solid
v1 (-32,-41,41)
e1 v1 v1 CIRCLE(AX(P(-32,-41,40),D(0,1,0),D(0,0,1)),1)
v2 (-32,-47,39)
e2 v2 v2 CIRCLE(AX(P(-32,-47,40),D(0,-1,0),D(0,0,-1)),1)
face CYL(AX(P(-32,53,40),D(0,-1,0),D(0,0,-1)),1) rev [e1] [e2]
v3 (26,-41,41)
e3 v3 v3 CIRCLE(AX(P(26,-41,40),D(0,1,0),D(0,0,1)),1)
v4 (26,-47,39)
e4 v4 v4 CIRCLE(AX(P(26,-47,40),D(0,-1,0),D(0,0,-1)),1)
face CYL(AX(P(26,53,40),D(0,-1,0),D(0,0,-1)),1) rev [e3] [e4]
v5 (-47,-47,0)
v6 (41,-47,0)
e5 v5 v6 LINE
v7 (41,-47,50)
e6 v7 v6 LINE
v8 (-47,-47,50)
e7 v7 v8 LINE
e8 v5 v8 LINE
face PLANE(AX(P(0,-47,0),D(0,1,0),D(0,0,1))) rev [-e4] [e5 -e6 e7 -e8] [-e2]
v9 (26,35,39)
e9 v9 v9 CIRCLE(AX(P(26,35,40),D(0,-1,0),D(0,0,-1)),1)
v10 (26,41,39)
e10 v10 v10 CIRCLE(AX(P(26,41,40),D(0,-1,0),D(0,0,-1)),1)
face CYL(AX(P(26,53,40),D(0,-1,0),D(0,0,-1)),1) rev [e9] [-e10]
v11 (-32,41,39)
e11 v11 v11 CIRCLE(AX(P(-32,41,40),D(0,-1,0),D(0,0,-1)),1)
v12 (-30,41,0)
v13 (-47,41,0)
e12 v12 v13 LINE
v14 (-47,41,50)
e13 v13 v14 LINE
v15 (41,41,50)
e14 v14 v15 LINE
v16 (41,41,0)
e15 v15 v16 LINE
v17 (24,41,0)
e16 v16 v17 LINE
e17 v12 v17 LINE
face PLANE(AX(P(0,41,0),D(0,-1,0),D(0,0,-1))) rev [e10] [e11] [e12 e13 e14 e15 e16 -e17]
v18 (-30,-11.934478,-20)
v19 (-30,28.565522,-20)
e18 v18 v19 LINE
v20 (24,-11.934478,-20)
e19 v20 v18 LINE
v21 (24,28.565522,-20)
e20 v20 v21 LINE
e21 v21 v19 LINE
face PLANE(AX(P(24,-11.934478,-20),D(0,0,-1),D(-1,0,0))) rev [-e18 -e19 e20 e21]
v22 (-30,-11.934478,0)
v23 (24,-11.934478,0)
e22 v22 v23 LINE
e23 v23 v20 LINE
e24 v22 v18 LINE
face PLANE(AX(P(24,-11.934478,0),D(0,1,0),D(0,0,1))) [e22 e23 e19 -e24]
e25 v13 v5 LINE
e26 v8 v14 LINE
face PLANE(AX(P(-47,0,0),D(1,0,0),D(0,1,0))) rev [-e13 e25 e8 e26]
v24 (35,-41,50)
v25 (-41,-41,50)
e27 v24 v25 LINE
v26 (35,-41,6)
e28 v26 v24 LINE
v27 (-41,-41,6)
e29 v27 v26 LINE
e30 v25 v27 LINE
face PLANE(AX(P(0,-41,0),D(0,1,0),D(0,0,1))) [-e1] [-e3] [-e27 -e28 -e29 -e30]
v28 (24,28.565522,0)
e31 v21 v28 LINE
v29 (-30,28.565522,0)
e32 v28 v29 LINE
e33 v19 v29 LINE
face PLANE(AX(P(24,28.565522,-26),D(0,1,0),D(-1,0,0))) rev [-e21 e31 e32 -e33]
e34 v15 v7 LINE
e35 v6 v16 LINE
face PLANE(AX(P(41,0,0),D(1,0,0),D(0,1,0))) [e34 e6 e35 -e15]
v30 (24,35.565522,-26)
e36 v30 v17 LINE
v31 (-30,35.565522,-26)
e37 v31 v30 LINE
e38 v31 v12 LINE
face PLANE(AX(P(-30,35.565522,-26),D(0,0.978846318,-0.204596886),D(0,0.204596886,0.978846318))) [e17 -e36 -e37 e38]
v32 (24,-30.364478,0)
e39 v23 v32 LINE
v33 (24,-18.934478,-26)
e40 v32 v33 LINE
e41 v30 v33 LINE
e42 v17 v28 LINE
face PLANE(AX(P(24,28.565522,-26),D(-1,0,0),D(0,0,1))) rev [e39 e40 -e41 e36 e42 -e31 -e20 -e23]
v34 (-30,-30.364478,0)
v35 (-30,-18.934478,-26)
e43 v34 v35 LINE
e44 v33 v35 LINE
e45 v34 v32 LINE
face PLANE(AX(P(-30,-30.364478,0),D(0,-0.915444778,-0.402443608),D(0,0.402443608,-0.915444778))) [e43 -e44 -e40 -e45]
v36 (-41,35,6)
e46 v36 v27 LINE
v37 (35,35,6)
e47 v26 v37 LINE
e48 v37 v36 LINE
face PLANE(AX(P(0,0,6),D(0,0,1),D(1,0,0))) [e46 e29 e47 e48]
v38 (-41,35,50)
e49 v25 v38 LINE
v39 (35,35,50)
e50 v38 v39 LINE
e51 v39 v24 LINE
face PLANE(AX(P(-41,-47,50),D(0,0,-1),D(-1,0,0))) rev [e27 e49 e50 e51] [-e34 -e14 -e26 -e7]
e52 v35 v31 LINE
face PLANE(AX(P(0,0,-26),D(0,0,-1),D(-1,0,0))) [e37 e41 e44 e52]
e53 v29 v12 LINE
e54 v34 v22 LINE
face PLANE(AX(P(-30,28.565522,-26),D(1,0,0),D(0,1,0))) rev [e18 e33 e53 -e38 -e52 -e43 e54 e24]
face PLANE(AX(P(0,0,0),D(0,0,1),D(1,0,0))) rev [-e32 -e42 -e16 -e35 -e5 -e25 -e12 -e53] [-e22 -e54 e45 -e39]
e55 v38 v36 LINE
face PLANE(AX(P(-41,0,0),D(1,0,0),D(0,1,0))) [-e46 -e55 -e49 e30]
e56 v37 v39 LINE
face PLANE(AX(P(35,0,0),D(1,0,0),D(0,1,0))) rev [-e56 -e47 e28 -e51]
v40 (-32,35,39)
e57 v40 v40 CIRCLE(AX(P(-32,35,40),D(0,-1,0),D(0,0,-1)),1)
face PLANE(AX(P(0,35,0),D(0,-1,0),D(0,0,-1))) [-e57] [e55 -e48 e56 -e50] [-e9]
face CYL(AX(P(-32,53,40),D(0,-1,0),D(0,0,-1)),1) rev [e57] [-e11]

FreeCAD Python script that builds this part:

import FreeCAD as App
import Part
import Sketcher

doc = App.newDocument("Part")
params = doc.addObject("Spreadsheet::Sheet", "Params")
for row, (alias, value) in enumerate([
    ("sketch1_width", "76 mm"),
    ("pad1_length", "6 mm"),
    ("sketch2_width", "76 mm"),
    ("sketch2_height", "50 mm"),
    ("pad2_length", "6 mm"),
    ("sketch3_width", "82 mm"),
    ("sketch3_height", "50 mm"),
    ("pad3_length", "6 mm"),
    ("sketch4_width", "82 mm"),
    ("sketch4_height", "50 mm"),
    ("pad4_length", "6 mm"),
    ("sketch5_width", "88 mm"),
    ("sketch5_height", "50 mm"),
    ("pad5_length", "6 mm"),
    ("sketch6_width", "54 mm"),
    ("sketch6_height", "7 mm"),
    ("pad6_length", "26 mm"),
    ("sketch7_width", "54 mm"),
    ("sketch7_height", "6 mm"),
    ("pad7_length", "40.5 mm"),
    ("sketch8_width", "54 mm"),
    ("sketch8_height", "7 mm"),
    ("pad8_length", "26 mm"),
    ("sketch9_height", "26 mm"),
    ("sketch9_width", "11.43 mm"),
    ("pad9_length", "54 mm"),
    ("sketch10_diameter", "2 mm"),
    ("pocket1_length", "100 mm"),
], start=1):
    params.set(f"A{row}", alias)
    params.set(f"B{row}", "=" + value)
    params.setAlias(f"B{row}", alias)

body = doc.addObject("PartDesign::Body", "Body")

sketch1 = doc.addObject("Sketcher::SketchObject", "Sketch")
body.addObject(sketch1)
sketch1.AttachmentSupport = (doc.XY_Plane, [""])
sketch1.MapMode = "FlatFace"
sketch1.addGeometry([
    Part.LineSegment(App.Vector(-41, 35, 0), App.Vector(-41, -41, 0)),
    Part.LineSegment(App.Vector(-41, -41, 0), App.Vector(35, -41, 0)),
    Part.LineSegment(App.Vector(35, -41, 0), App.Vector(35, 35, 0)),
    Part.LineSegment(App.Vector(35, 35, 0), App.Vector(-41, 35, 0)),
], False)
sketch1.addConstraint([
    Sketcher.Constraint("Coincident", 0, 2, 1, 1),
    Sketcher.Constraint("Coincident", 1, 2, 2, 1),
    Sketcher.Constraint("Coincident", 2, 2, 3, 1),
    Sketcher.Constraint("Coincident", 3, 2, 0, 1),
    Sketcher.Constraint("Vertical", 0),
    Sketcher.Constraint("Horizontal", 1),
    Sketcher.Constraint("Vertical", 2),
    Sketcher.Constraint("Horizontal", 3),
    Sketcher.Constraint("Equal", 3, 0),
    Sketcher.Constraint("DistanceX", 1, 1, 1, 2, 76.0),
    Sketcher.Constraint("DistanceX", 0, 2, -1, 1, 41.0),
    Sketcher.Constraint("DistanceY", 0, 2, -1, 1, 41.0),
])
sketch1.setExpression("Constraints[9]", "Params.sketch1_width")
pad1 = doc.addObject("PartDesign::Pad", "Pad")
body.addObject(pad1)
pad1.Profile = sketch1
pad1.setExpression("Length", "Params.pad1_length")

sketch2 = doc.addObject("Sketcher::SketchObject", "Sketch001")
body.addObject(sketch2)
sketch2.AttachmentSupport = (doc.XZ_Plane, [""])
sketch2.MapMode = "FlatFace"
sketch2.AttachmentOffset = App.Placement(App.Vector(0, 0, 41), App.Rotation())
sketch2.addGeometry([
    Part.LineSegment(App.Vector(35, 0, 0), App.Vector(35, 50, 0)),
    Part.LineSegment(App.Vector(35, 50, 0), App.Vector(-41, 50, 0)),
    Part.LineSegment(App.Vector(-41, 50, 0), App.Vector(-41, 0, 0)),
    Part.LineSegment(App.Vector(-41, 0, 0), App.Vector(35, 0, 0)),
], False)
sketch2.addConstraint([
    Sketcher.Constraint("Coincident", 0, 2, 1, 1),
    Sketcher.Constraint("Coincident", 1, 2, 2, 1),
    Sketcher.Constraint("Coincident", 2, 2, 3, 1),
    Sketcher.Constraint("Coincident", 3, 2, 0, 1),
    Sketcher.Constraint("Vertical", 0),
    Sketcher.Constraint("Horizontal", 1),
    Sketcher.Constraint("Vertical", 2),
    Sketcher.Constraint("Horizontal", 3),
    Sketcher.Constraint("PointOnObject", 2, 2, -1),
    Sketcher.Constraint("DistanceX", 1, 2, 1, 1, 76.0),
    Sketcher.Constraint("DistanceY", 0, 1, 0, 2, 50.0),
    Sketcher.Constraint("DistanceX", -1, 1, 0, 2, 35.0),
])
sketch2.setExpression("Constraints[9]", "Params.sketch2_width")
sketch2.setExpression("Constraints[10]", "Params.sketch2_height")
pad2 = doc.addObject("PartDesign::Pad", "Pad001")
body.addObject(pad2)
pad2.Profile = sketch2
pad2.setExpression("Length", "Params.pad2_length")

sketch3 = doc.addObject("Sketcher::SketchObject", "Sketch002")
body.addObject(sketch3)
sketch3.AttachmentSupport = (doc.YZ_Plane, [""])
sketch3.MapMode = "FlatFace"
sketch3.AttachmentOffset = App.Placement(App.Vector(0, 0, -41), App.Rotation())
sketch3.addGeometry([
    Part.LineSegment(App.Vector(35, 0, 0), App.Vector(-47, 0, 0)),
    Part.LineSegment(App.Vector(-47, 0, 0), App.Vector(-47, 50, 0)),
    Part.LineSegment(App.Vector(-47, 50, 0), App.Vector(35, 50, 0)),
    Part.LineSegment(App.Vector(35, 50, 0), App.Vector(35, 0, 0)),
], False)
sketch3.addConstraint([
    Sketcher.Constraint("Coincident", 0, 2, 1, 1),
    Sketcher.Constraint("Coincident", 1, 2, 2, 1),
    Sketcher.Constraint("Coincident", 2, 2, 3, 1),
    Sketcher.Constraint("Coincident", 3, 2, 0, 1),
    Sketcher.Constraint("Horizontal", 0),
    Sketcher.Constraint("Vertical", 1),
    Sketcher.Constraint("Horizontal", 2),
    Sketcher.Constraint("Vertical", 3),
    Sketcher.Constraint("PointOnObject", 0, 2, -1),
    Sketcher.Constraint("DistanceX", 0, 2, 0, 1, 82.0),
    Sketcher.Constraint("DistanceY", 1, 1, 1, 2, 50.0),
    Sketcher.Constraint("DistanceX", 0, 2, -1, 1, 47.0),
])
sketch3.setExpression("Constraints[9]", "Params.sketch3_width")
sketch3.setExpression("Constraints[10]", "Params.sketch3_height")
pad3 = doc.addObject("PartDesign::Pad", "Pad002")
body.addObject(pad3)
pad3.Profile = sketch3
pad3.setExpression("Length", "Params.pad3_length")
pad3.Reversed = True

sketch4 = doc.addObject("Sketcher::SketchObject", "Sketch003")
body.addObject(sketch4)
sketch4.AttachmentSupport = (doc.YZ_Plane, [""])
sketch4.MapMode = "FlatFace"
sketch4.AttachmentOffset = App.Placement(App.Vector(0, 0, 35), App.Rotation())
sketch4.addGeometry([
    Part.LineSegment(App.Vector(35, 50, 0), App.Vector(-47, 50, 0)),
    Part.LineSegment(App.Vector(-47, 50, 0), App.Vector(-47, 0, 0)),
    Part.LineSegment(App.Vector(-47, 0, 0), App.Vector(35, 0, 0)),
    Part.LineSegment(App.Vector(35, 0, 0), App.Vector(35, 50, 0)),
], False)
sketch4.addConstraint([
    Sketcher.Constraint("Coincident", 0, 2, 1, 1),
    Sketcher.Constraint("Coincident", 1, 2, 2, 1),
    Sketcher.Constraint("Coincident", 2, 2, 3, 1),
    Sketcher.Constraint("Coincident", 3, 2, 0, 1),
    Sketcher.Constraint("Horizontal", 0),
    Sketcher.Constraint("Vertical", 1),
    Sketcher.Constraint("Horizontal", 2),
    Sketcher.Constraint("Vertical", 3),
    Sketcher.Constraint("PointOnObject", 1, 2, -1),
    Sketcher.Constraint("DistanceX", 0, 2, 0, 1, 82.0),
    Sketcher.Constraint("DistanceY", 1, 2, 1, 1, 50.0),
    Sketcher.Constraint("DistanceX", 0, 2, -1, 1, 47.0),
])
sketch4.setExpression("Constraints[9]", "Params.sketch4_width")
sketch4.setExpression("Constraints[10]", "Params.sketch4_height")
pad4 = doc.addObject("PartDesign::Pad", "Pad003")
body.addObject(pad4)
pad4.Profile = sketch4
pad4.setExpression("Length", "Params.pad4_length")

sketch5 = doc.addObject("Sketcher::SketchObject", "Sketch004")
body.addObject(sketch5)
sketch5.AttachmentSupport = (doc.XZ_Plane, [""])
sketch5.MapMode = "FlatFace"
sketch5.AttachmentOffset = App.Placement(App.Vector(0, 0, -35), App.Rotation())
sketch5.addGeometry([
    Part.LineSegment(App.Vector(-47, 0, 0), App.Vector(-47, 50, 0)),
    Part.LineSegment(App.Vector(-47, 50, 0), App.Vector(41, 50, 0)),
    Part.LineSegment(App.Vector(41, 50, 0), App.Vector(41, 0, 0)),
    Part.LineSegment(App.Vector(41, 0, 0), App.Vector(-47, 0, 0)),
], False)
sketch5.addConstraint([
    Sketcher.Constraint("Coincident", 0, 2, 1, 1),
    Sketcher.Constraint("Coincident", 1, 2, 2, 1),
    Sketcher.Constraint("Coincident", 2, 2, 3, 1),
    Sketcher.Constraint("Coincident", 3, 2, 0, 1),
    Sketcher.Constraint("Vertical", 0),
    Sketcher.Constraint("Horizontal", 1),
    Sketcher.Constraint("Vertical", 2),
    Sketcher.Constraint("Horizontal", 3),
    Sketcher.Constraint("PointOnObject", 2, 2, -1),
    Sketcher.Constraint("DistanceX", 1, 1, 1, 2, 88.0),
    Sketcher.Constraint("DistanceY", 0, 1, 0, 2, 50.0),
    Sketcher.Constraint("DistanceX", 0, 2, -1, 1, 47.0),
])
sketch5.setExpression("Constraints[9]", "Params.sketch5_width")
sketch5.setExpression("Constraints[10]", "Params.sketch5_height")
pad5 = doc.addObject("PartDesign::Pad", "Pad004")
body.addObject(pad5)
pad5.Profile = sketch5
pad5.setExpression("Length", "Params.pad5_length")
pad5.Reversed = True

sketch6 = doc.addObject("Sketcher::SketchObject", "Sketch005")
body.addObject(sketch6)
sketch6.AttachmentSupport = (doc.XY_Plane, [""])
sketch6.MapMode = "FlatFace"
sketch6.addGeometry([
    Part.LineSegment(App.Vector(24, 36, 0), App.Vector(24, 29, 0)),
    Part.LineSegment(App.Vector(24, 29, 0), App.Vector(-30, 29, 0)),
    Part.LineSegment(App.Vector(-30, 29, 0), App.Vector(-30, 36, 0)),
    Part.LineSegment(App.Vector(-30, 36, 0), App.Vector(24, 36, 0)),
], False)
sketch6.addConstraint([
    Sketcher.Constraint("Coincident", 0, 2, 1, 1),
    Sketcher.Constraint("Coincident", 1, 2, 2, 1),
    Sketcher.Constraint("Coincident", 2, 2, 3, 1),
    Sketcher.Constraint("Coincident", 3, 2, 0, 1),
    Sketcher.Constraint("Vertical", 0),
    Sketcher.Constraint("Horizontal", 1),
    Sketcher.Constraint("Vertical", 2),
    Sketcher.Constraint("Horizontal", 3),
    Sketcher.Constraint("DistanceX", 1, 2, 1, 1, 54.0),
    Sketcher.Constraint("DistanceY", 0, 2, 0, 1, 7.0),
    Sketcher.Constraint("DistanceX", -1, 1, 0, 2, 24.0),
    Sketcher.Constraint("DistanceY", -1, 1, 0, 2, 28.565522),
])
sketch6.setExpression("Constraints[8]", "Params.sketch6_width")
sketch6.setExpression("Constraints[9]", "Params.sketch6_height")
pad6 = doc.addObject("PartDesign::Pad", "Pad005")
body.addObject(pad6)
pad6.Profile = sketch6
pad6.setExpression("Length", "Params.pad6_length")
pad6.Reversed = True

sketch7 = doc.addObject("Sketcher::SketchObject", "Sketch006")
body.addObject(sketch7)
sketch7.AttachmentSupport = (doc.XZ_Plane, [""])
sketch7.MapMode = "FlatFace"
sketch7.AttachmentOffset = App.Placement(App.Vector(0, 0, -28.565522), App.Rotation())
sketch7.addGeometry([
    Part.LineSegment(App.Vector(24, -26, 0), App.Vector(24, -20, 0)),
    Part.LineSegment(App.Vector(24, -20, 0), App.Vector(-30, -20, 0)),
    Part.LineSegment(App.Vector(-30, -20, 0), App.Vector(-30, -26, 0)),
    Part.LineSegment(App.Vector(-30, -26, 0), App.Vector(24, -26, 0)),
], False)
sketch7.addConstraint([
    Sketcher.Constraint("Coincident", 0, 2, 1, 1),
    Sketcher.Constraint("Coincident", 1, 2, 2, 1),
    Sketcher.Constraint("Coincident", 2, 2, 3, 1),
    Sketcher.Constraint("Coincident", 3, 2, 0, 1),
    Sketcher.Constraint("Vertical", 0),
    Sketcher.Constraint("Horizontal", 1),
    Sketcher.Constraint("Vertical", 2),
    Sketcher.Constraint("Horizontal", 3),
    Sketcher.Constraint("DistanceX", 1, 2, 1, 1, 54.0),
    Sketcher.Constraint("DistanceY", 0, 1, 0, 2, 6.0),
    Sketcher.Constraint("DistanceX", -1, 1, 0, 2, 24.0),
    Sketcher.Constraint("DistanceY", 0, 2, -1, 1, 20.0),
])
sketch7.setExpression("Constraints[8]", "Params.sketch7_width")
sketch7.setExpression("Constraints[9]", "Params.sketch7_height")
pad7 = doc.addObject("PartDesign::Pad", "Pad006")
body.addObject(pad7)
pad7.Profile = sketch7
pad7.setExpression("Length", "Params.pad7_length")

sketch8 = doc.addObject("Sketcher::SketchObject", "Sketch007")
body.addObject(sketch8)
sketch8.AttachmentSupport = (doc.XY_Plane, [""])
sketch8.MapMode = "FlatFace"
sketch8.AttachmentOffset = App.Placement(App.Vector(0, 0, -26), App.Rotation())
sketch8.addGeometry([
    Part.LineSegment(App.Vector(24, -12, 0), App.Vector(24, -19, 0)),
    Part.LineSegment(App.Vector(24, -19, 0), App.Vector(-30, -19, 0)),
    Part.LineSegment(App.Vector(-30, -19, 0), App.Vector(-30, -12, 0)),
    Part.LineSegment(App.Vector(-30, -12, 0), App.Vector(24, -12, 0)),
], False)
sketch8.addConstraint([
    Sketcher.Constraint("Coincident", 0, 2, 1, 1),
    Sketcher.Constraint("Coincident", 1, 2, 2, 1),
    Sketcher.Constraint("Coincident", 2, 2, 3, 1),
    Sketcher.Constraint("Coincident", 3, 2, 0, 1),
    Sketcher.Constraint("Vertical", 0),
    Sketcher.Constraint("Horizontal", 1),
    Sketcher.Constraint("Vertical", 2),
    Sketcher.Constraint("Horizontal", 3),
    Sketcher.Constraint("DistanceX", 1, 2, 1, 1, 54.0),
    Sketcher.Constraint("DistanceY", 0, 2, 0, 1, 7.0),
    Sketcher.Constraint("DistanceX", -1, 1, 0, 2, 24.0),
    Sketcher.Constraint("DistanceY", 0, 2, -1, 1, 18.934478),
])
sketch8.setExpression("Constraints[8]", "Params.sketch8_width")
sketch8.setExpression("Constraints[9]", "Params.sketch8_height")
pad8 = doc.addObject("PartDesign::Pad", "Pad007")
body.addObject(pad8)
pad8.Profile = sketch8
pad8.setExpression("Length", "Params.pad8_length")

sketch9 = doc.addObject("Sketcher::SketchObject", "Sketch008")
body.addObject(sketch9)
sketch9.AttachmentSupport = (doc.YZ_Plane, [""])
sketch9.MapMode = "FlatFace"
sketch9.AttachmentOffset = App.Placement(App.Vector(0, 0, 24), App.Rotation())
sketch9.addGeometry([
    Part.LineSegment(App.Vector(-19, -26, 0), App.Vector(-19, 0, 0)),
    Part.LineSegment(App.Vector(-19, 0, 0), App.Vector(-30, 0, 0)),
    Part.LineSegment(App.Vector(-30, 0, 0), App.Vector(-19, -26, 0)),
    Part.LineSegment(App.Vector(36, 0, 0), App.Vector(36, -26, 0)),
    Part.LineSegment(App.Vector(36, -26, 0), App.Vector(41, 0, 0)),
    Part.LineSegment(App.Vector(41, 0, 0), App.Vector(36, 0, 0)),
], False)
sketch9.addConstraint([
    Sketcher.Constraint("Coincident", 0, 2, 1, 1),
    Sketcher.Constraint("Coincident", 1, 2, 2, 1),
    Sketcher.Constraint("Coincident", 2, 2, 0, 1),
    Sketcher.Constraint("Coincident", 3, 2, 4, 1),
    Sketcher.Constraint("Coincident", 4, 2, 5, 1),
    Sketcher.Constraint("Coincident", 5, 2, 3, 1),
    Sketcher.Constraint("Vertical", 0),
    Sketcher.Constraint("Horizontal", 1),
    Sketcher.Constraint("Vertical", 3),
    Sketcher.Constraint("Horizontal", 5),
    Sketcher.Constraint("PointOnObject", 0, 2, -1),
    Sketcher.Constraint("PointOnObject", 4, 2, -1),
    Sketcher.Constraint("Horizontal", 2, 2, 3, 2),
    Sketcher.Constraint("DistanceY", 0, 1, 0, 2, 26.0),
    Sketcher.Constraint("DistanceX", -1, 1, 4, 2, 41.0),
    Sketcher.Constraint("DistanceX", 1, 2, 1, 1, 11.43),
    Sketcher.Constraint("DistanceX", 2, 2, 3, 2, 54.5),
    Sketcher.Constraint("DistanceX", 5, 2, 5, 1, 5.434478),
])
sketch9.setExpression("Constraints[13]", "Params.sketch9_height")
sketch9.setExpression("Constraints[15]", "Params.sketch9_width")
pad9 = doc.addObject("PartDesign::Pad", "Pad008")
body.addObject(pad9)
pad9.Profile = sketch9
pad9.setExpression("Length", "Params.pad9_length")
pad9.Reversed = True

sketch10 = doc.addObject("Sketcher::SketchObject", "Sketch009")
body.addObject(sketch10)
sketch10.AttachmentSupport = (doc.XZ_Plane, [""])
sketch10.MapMode = "FlatFace"
sketch10.AttachmentOffset = App.Placement(App.Vector(0, 0, 47), App.Rotation())
sketch10.addGeometry([
    Part.Circle(App.Vector(26, 40, 0), App.Vector(0, 0, 1), 1),
    Part.Circle(App.Vector(-32, 40, 0), App.Vector(0, 0, 1), 1),
], False)
sketch10.addConstraint([
    Sketcher.Constraint("Equal", 0, 1),
    Sketcher.Constraint("Horizontal", 0, 3, 1, 3),
    Sketcher.Constraint("Diameter", 0, 2.0),
    Sketcher.Constraint("DistanceX", -1, 1, 0, 3, 26.0),
    Sketcher.Constraint("DistanceY", -1, 1, 0, 3, 40.0),
    Sketcher.Constraint("DistanceX", 1, 3, -1, 1, 32.0),
])
sketch10.setExpression("Constraints[2]", "Params.sketch10_diameter")
pocket1 = doc.addObject("PartDesign::Pocket", "Pocket")
body.addObject(pocket1)
pocket1.Profile = sketch10
pocket1.setExpression("Length", "Params.pocket1_length")

doc.recompute()
